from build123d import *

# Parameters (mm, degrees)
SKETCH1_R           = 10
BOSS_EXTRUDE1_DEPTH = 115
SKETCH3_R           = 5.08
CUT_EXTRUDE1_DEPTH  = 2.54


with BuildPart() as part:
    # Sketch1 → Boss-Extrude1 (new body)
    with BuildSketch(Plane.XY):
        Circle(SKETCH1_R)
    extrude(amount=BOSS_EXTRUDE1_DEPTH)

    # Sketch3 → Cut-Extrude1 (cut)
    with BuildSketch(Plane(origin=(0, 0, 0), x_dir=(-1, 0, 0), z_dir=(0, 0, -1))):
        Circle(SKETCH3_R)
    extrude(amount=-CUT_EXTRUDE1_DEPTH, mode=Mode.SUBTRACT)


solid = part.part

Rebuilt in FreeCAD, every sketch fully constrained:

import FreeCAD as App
import Part
import Sketcher
Q = App.Units.Quantity

doc = App.newDocument("Part")
body = doc.addObject("PartDesign::Body", "Body")

sketch1 = doc.addObject("Sketcher::SketchObject", "Sketch")
body.addObject(sketch1)
sketch1.AttachmentSupport = (doc.XY_Plane, [""])
sketch1.MapMode = "FlatFace"
sketch1.addGeometry(Part.Circle(App.Vector(0, 0, 0), App.Vector(0, 0, 1), 10), False)
sketch1.addConstraint(Sketcher.Constraint("Coincident", 0, 3, -1, 1))
sketch1.addConstraint(Sketcher.Constraint("Diameter", 0, Q("20 mm")))
pad1 = doc.addObject("PartDesign::Pad", "Pad")
body.addObject(pad1)
pad1.Profile = sketch1
pad1.Length = 115

sketch2 = doc.addObject("Sketcher::SketchObject", "Sketch001")
body.addObject(sketch2)
sketch2.AttachmentSupport = (doc.XY_Plane, [""])
sketch2.MapMode = "FlatFace"
sketch2.addGeometry(Part.Circle(App.Vector(0, 0, 0), App.Vector(0, 0, 1), 5), False)
sketch2.addConstraint(Sketcher.Constraint("Coincident", 0, 3, -1, 1))
sketch2.addConstraint(Sketcher.Constraint("Diameter", 0, Q("10.16 mm")))
pocket1 = doc.addObject("PartDesign::Pocket", "Pocket")
body.addObject(pocket1)
pocket1.Profile = sketch2
pocket1.Length = 2.54
pocket1.Reversed = True

doc.recompute()
